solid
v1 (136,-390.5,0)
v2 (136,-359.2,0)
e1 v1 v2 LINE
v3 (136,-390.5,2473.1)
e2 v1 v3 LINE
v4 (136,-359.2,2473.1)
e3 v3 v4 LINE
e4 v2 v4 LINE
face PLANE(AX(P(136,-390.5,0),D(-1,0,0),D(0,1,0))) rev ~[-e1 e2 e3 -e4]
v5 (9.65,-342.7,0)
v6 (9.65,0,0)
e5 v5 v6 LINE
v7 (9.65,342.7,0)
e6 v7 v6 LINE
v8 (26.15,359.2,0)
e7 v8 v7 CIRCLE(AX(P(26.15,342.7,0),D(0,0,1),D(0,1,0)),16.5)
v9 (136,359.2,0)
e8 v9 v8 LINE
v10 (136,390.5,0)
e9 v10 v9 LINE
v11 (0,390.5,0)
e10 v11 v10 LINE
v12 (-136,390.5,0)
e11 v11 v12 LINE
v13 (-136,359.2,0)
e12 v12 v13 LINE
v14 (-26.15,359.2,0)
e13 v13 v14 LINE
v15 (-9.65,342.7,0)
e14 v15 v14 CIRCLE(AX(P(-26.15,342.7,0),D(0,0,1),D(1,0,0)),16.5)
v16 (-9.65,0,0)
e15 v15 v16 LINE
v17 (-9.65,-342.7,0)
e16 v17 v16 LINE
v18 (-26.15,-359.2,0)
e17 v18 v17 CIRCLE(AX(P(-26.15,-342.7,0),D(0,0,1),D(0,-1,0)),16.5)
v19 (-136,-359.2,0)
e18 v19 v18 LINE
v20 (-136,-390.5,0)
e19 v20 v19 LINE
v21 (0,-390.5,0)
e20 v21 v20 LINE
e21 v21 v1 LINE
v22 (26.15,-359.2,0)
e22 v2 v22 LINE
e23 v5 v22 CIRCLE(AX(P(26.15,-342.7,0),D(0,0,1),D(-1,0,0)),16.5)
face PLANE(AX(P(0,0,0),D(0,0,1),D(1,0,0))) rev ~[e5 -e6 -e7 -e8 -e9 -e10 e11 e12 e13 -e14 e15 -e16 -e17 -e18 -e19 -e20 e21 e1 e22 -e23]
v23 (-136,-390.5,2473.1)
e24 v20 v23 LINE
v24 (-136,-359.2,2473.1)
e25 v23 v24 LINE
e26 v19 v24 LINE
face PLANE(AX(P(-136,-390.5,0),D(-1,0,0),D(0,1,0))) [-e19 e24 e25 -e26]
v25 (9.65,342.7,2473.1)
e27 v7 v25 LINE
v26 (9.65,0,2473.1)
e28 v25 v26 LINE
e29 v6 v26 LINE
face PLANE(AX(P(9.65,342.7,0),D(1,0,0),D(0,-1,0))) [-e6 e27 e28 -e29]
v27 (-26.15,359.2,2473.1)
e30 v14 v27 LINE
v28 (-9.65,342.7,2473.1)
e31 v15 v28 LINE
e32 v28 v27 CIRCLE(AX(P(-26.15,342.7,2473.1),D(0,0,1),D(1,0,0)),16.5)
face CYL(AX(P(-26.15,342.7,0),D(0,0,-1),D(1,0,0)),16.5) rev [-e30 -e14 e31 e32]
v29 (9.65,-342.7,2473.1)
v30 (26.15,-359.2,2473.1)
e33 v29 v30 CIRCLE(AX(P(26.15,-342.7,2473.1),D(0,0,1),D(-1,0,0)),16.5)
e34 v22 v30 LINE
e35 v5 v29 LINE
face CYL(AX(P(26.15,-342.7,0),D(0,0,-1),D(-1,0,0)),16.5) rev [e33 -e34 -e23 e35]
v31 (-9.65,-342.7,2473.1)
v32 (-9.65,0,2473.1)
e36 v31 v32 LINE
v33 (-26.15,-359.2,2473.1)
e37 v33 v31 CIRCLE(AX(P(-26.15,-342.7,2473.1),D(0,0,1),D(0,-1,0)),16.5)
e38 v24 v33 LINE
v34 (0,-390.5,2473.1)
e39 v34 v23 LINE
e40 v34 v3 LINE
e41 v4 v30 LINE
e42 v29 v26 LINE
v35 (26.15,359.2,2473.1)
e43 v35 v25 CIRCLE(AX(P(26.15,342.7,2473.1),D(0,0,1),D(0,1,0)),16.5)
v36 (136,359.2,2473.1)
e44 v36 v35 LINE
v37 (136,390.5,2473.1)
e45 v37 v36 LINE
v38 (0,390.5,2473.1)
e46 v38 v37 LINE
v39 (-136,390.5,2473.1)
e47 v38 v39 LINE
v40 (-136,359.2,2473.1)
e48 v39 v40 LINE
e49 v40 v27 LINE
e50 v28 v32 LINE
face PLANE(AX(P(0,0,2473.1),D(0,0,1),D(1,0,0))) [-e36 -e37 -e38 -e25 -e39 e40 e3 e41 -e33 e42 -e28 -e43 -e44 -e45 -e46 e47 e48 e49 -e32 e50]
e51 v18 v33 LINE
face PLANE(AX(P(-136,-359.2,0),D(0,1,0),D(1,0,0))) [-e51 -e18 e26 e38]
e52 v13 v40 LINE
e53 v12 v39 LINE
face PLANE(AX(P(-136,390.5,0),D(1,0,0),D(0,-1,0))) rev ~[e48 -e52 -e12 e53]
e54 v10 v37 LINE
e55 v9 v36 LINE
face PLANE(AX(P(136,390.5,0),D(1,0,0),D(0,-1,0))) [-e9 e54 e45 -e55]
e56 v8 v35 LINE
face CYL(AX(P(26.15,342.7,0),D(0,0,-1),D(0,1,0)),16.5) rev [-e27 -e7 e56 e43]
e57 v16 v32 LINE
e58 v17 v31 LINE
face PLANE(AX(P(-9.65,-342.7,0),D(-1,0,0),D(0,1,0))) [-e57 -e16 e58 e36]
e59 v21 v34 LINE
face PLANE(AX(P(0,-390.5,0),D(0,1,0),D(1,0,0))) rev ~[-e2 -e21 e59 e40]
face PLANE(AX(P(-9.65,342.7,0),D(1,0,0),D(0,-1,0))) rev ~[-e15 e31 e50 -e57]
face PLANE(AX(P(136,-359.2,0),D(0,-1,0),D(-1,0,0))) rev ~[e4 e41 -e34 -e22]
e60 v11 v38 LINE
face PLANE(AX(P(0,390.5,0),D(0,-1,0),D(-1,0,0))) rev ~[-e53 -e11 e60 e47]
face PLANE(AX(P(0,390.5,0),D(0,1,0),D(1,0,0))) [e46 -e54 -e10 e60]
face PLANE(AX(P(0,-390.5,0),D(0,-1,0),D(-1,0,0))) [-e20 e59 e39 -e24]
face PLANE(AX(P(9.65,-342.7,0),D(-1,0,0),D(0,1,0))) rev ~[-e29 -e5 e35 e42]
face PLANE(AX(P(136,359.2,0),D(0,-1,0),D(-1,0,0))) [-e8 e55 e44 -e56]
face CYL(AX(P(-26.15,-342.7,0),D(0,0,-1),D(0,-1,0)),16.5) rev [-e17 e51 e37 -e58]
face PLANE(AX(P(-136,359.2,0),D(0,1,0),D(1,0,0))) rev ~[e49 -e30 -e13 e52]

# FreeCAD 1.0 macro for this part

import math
import FreeCAD as App
import Part
import Sketcher
Q = App.Units.Quantity

doc = App.newDocument("Part")
params = doc.addObject("Spreadsheet::Sheet", "Params")
for row, (alias, value) in enumerate([
    ("sketch1_radius", "16.5 mm"),
    ("sketch1_height", "31.3 mm"),
    ("pad1_length", "2473.1 mm"),
], start=1):
    params.set(f"A{row}", alias)
    params.set(f"B{row}", "=" + value)
    params.setAlias(f"B{row}", alias)

body = doc.addObject("PartDesign::Body", "Body")

sketch1 = body.newObject("Sketcher::SketchObject", "Sketch")
sketch1.AttachmentSupport = (doc.getObject("XY_Plane"), [""])
sketch1.MapMode = "FlatFace"
sketch1.addGeometry(Part.LineSegment(App.Vector(-136, -359, 0), App.Vector(-136, -390, 0)), False)
sketch1.addGeometry(Part.LineSegment(App.Vector(-136, -390, 0), App.Vector(136, -390, 0)), False)
sketch1.addGeometry(Part.LineSegment(App.Vector(136, -390, 0), App.Vector(136, -359, 0)), False)
sketch1.addGeometry(Part.LineSegment(App.Vector(136, -359, 0), App.Vector(26, -359, 0)), False)
sketch1.addGeometry(Part.ArcOfCircle(Part.Circle(App.Vector(26, -343, 0), App.Vector(0, 0, 1), 16), math.radians(180), math.radians(270)), False)
sketch1.addGeometry(Part.LineSegment(App.Vector(10, -343, 0), App.Vector(10, 343, 0)), False)
sketch1.addGeometry(Part.ArcOfCircle(Part.Circle(App.Vector(26, 343, 0), App.Vector(0, 0, 1), 16), math.radians(90), math.radians(180)), False)
sketch1.addGeometry(Part.LineSegment(App.Vector(26, 359, 0), App.Vector(136, 359, 0)), False)
sketch1.addGeometry(Part.LineSegment(App.Vector(136, 359, 0), App.Vector(136, 390, 0)), False)
sketch1.addGeometry(Part.LineSegment(App.Vector(136, 390, 0), App.Vector(-136, 390, 0)), False)
sketch1.addGeometry(Part.LineSegment(App.Vector(-136, 390, 0), App.Vector(-136, 359, 0)), False)
sketch1.addGeometry(Part.LineSegment(App.Vector(-136, 359, 0), App.Vector(-26, 359, 0)), False)
sketch1.addGeometry(Part.ArcOfCircle(Part.Circle(App.Vector(-26, 343, 0), App.Vector(0, 0, 1), 16), math.radians(0), math.radians(90)), False)
sketch1.addGeometry(Part.LineSegment(App.Vector(-10, 343, 0), App.Vector(-10, -343, 0)), False)
sketch1.addGeometry(Part.ArcOfCircle(Part.Circle(App.Vector(-26, -343, 0), App.Vector(0, 0, 1), 16), math.radians(-90), math.radians(0)), False)
sketch1.addGeometry(Part.LineSegment(App.Vector(-26, -359, 0), App.Vector(-136, -359, 0)), False)
sketch1.addConstraint(Sketcher.Constraint("Coincident", 0, 2, 1, 1))
sketch1.addConstraint(Sketcher.Constraint("Coincident", 1, 2, 2, 1))
sketch1.addConstraint(Sketcher.Constraint("Coincident", 2, 2, 3, 1))
sketch1.addConstraint(Sketcher.Constraint("Tangent", 3, 2, 4, 2))
sketch1.addConstraint(Sketcher.Constraint("Tangent", 4, 1, 5, 1))
sketch1.addConstraint(Sketcher.Constraint("Tangent", 5, 2, 6, 2))
sketch1.addConstraint(Sketcher.Constraint("Tangent", 6, 1, 7, 1))
sketch1.addConstraint(Sketcher.Constraint("Coincident", 7, 2, 8, 1))
sketch1.addConstraint(Sketcher.Constraint("Coincident", 8, 2, 9, 1))
sketch1.addConstraint(Sketcher.Constraint("Coincident", 9, 2, 10, 1))
sketch1.addConstraint(Sketcher.Constraint("Coincident", 10, 2, 11, 1))
sketch1.addConstraint(Sketcher.Constraint("Tangent", 11, 2, 12, 2))
sketch1.addConstraint(Sketcher.Constraint("Tangent", 12, 1, 13, 1))
sketch1.addConstraint(Sketcher.Constraint("Tangent", 13, 2, 14, 2))
sketch1.addConstraint(Sketcher.Constraint("Tangent", 14, 1, 15, 1))
sketch1.addConstraint(Sketcher.Constraint("Coincident", 15, 2, 0, 1))
sketch1.addConstraint(Sketcher.Constraint("Vertical", 0))
sketch1.addConstraint(Sketcher.Constraint("Horizontal", 1))
sketch1.addConstraint(Sketcher.Constraint("Vertical", 2))
sketch1.addConstraint(Sketcher.Constraint("Horizontal", 3))
sketch1.addConstraint(Sketcher.Constraint("Vertical", 5))
sketch1.addConstraint(Sketcher.Constraint("Horizontal", 7))
sketch1.addConstraint(Sketcher.Constraint("Vertical", 8))
sketch1.addConstraint(Sketcher.Constraint("Horizontal", 9))
sketch1.addConstraint(Sketcher.Constraint("Vertical", 10))
sketch1.addConstraint(Sketcher.Constraint("Horizontal", 11))
sketch1.addConstraint(Sketcher.Constraint("Vertical", 13))
sketch1.addConstraint(Sketcher.Constraint("Horizontal", 15))
sketch1.addConstraint(Sketcher.Constraint("Equal", 4, 6))
sketch1.addConstraint(Sketcher.Constraint("Equal", 6, 12))
sketch1.addConstraint(Sketcher.Constraint("Equal", 12, 14))
sketch1.addConstraint(Sketcher.Constraint("Symmetric", 4, 3, 12, 3, -1, 1))
sketch1.addConstraint(Sketcher.Constraint("Symmetric", 0, 2, 8, 2, -1, 1))
sketch1.addConstraint(Sketcher.Constraint("Symmetric", 7, 2, 10, 2, -2))
sketch1.addConstraint(Sketcher.Constraint("Symmetric", 2, 2, 15, 2, -2))
sketch1.addConstraint(Sketcher.Constraint("Radius", 4, Q("16.5 mm")))
sketch1.addConstraint(Sketcher.Constraint("DistanceY", 0, 2, 0, 1, Q("31.3 mm")))
sketch1.addConstraint(Sketcher.Constraint("DistanceX", 0, 2, -1, 1, Q("136 mm")))
sketch1.addConstraint(Sketcher.Constraint("DistanceY", 0, 2, -1, 1, Q("390.5 mm")))
sketch1.addConstraint(Sketcher.Constraint("DistanceX", -1, 1, 4, 1, Q("9.65 mm")))
sketch1.setExpression("Constraints[35]", "Params.sketch1_radius")
sketch1.setExpression("Constraints[36]", "Params.sketch1_height")
pad1 = body.newObject("PartDesign::Pad", "Pad")
pad1.Profile = sketch1
pad1.setExpression("Length", "Params.pad1_length")

doc.recompute()
